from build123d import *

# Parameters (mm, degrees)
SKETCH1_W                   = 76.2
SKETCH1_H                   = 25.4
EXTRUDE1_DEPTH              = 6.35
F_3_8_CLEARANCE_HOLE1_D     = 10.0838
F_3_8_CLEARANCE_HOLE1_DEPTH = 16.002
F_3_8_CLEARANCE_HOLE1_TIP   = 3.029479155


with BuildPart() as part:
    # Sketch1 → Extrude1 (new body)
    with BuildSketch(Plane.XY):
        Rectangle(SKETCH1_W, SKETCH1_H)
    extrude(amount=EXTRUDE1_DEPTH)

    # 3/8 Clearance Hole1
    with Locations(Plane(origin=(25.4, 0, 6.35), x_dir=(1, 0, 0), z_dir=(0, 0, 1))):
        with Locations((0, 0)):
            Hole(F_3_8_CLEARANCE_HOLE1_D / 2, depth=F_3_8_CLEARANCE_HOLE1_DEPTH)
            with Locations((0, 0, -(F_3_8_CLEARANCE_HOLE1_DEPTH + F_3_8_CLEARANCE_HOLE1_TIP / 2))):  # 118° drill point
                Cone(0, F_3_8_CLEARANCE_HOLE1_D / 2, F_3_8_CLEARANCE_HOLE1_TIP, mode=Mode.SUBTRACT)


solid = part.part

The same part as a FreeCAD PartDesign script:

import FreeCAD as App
import Part
import Sketcher

V = App.Vector
Q = App.Units.Quantity

doc = App.newDocument("Part")
body = doc.addObject("PartDesign::Body", "Body")

sketch1 = body.newObject("Sketcher::SketchObject", "Sketch")
sketch1.AttachmentSupport = (doc.getObject("XY_Plane"), [""])
sketch1.MapMode = "FlatFace"
sketch1.addGeometry(Part.LineSegment(V(-38, 13, 0), V(-38, -13, 0)), False)
sketch1.addGeometry(Part.LineSegment(V(-38, -13, 0), V(38, -13, 0)), False)
sketch1.addGeometry(Part.LineSegment(V(38, -13, 0), V(38, 13, 0)), False)
sketch1.addGeometry(Part.LineSegment(V(38, 13, 0), V(-38, 13, 0)), False)
sketch1.addConstraint(Sketcher.Constraint("Coincident", 0, 2, 1, 1))
sketch1.addConstraint(Sketcher.Constraint("Coincident", 1, 2, 2, 1))
sketch1.addConstraint(Sketcher.Constraint("Coincident", 2, 2, 3, 1))
sketch1.addConstraint(Sketcher.Constraint("Coincident", 3, 2, 0, 1))
sketch1.addConstraint(Sketcher.Constraint("Vertical", 0))
sketch1.addConstraint(Sketcher.Constraint("Horizontal", 1))
sketch1.addConstraint(Sketcher.Constraint("Vertical", 2))
sketch1.addConstraint(Sketcher.Constraint("Horizontal", 3))
sketch1.addConstraint(Sketcher.Constraint("Symmetric", 0, 2, 2, 2, -1, 1))
sketch1.addConstraint(Sketcher.Constraint("DistanceX", 1, 1, 1, 2, Q("3 in")))
sketch1.addConstraint(Sketcher.Constraint("DistanceY", 0, 2, 0, 1, Q("1 in")))
pad1 = body.newObject("PartDesign::Pad", "Pad")
pad1.Profile = sketch1
pad1.Length = Q("0.25 in")

sketch2 = body.newObject("Sketcher::SketchObject", "Sketch001")
sketch2.AttachmentSupport = (doc.getObject("XY_Plane"), [""])
sketch2.MapMode = "FlatFace"
sketch2.AttachmentOffset = App.Placement(V(0, 0, 0.25 * 25.4), App.Rotation())
sketch2.addGeometry(Part.Circle(V(25, 0, 0), V(0, 0, 1), 5), False)
sketch2.addConstraint(Sketcher.Constraint("PointOnObject", 0, 3, -1))
sketch2.addConstraint(Sketcher.Constraint("Diameter", 0, Q("0.397 in")))
sketch2.addConstraint(Sketcher.Constraint("DistanceX", -1, 1, 0, 3, Q("1 in")))
doc.recompute()
hole = body.newObject("PartDesign::Hole", "Hole")
hole.Profile = sketch2
hole.ThreadType = "None"
hole.Diameter = Q("0.397 in")
hole.DepthType = "Dimension"
hole.Depth = Q("0.63 in")
hole.DrillPoint = "Angled"
hole.DrillPointAngle = 118

doc.recompute()
